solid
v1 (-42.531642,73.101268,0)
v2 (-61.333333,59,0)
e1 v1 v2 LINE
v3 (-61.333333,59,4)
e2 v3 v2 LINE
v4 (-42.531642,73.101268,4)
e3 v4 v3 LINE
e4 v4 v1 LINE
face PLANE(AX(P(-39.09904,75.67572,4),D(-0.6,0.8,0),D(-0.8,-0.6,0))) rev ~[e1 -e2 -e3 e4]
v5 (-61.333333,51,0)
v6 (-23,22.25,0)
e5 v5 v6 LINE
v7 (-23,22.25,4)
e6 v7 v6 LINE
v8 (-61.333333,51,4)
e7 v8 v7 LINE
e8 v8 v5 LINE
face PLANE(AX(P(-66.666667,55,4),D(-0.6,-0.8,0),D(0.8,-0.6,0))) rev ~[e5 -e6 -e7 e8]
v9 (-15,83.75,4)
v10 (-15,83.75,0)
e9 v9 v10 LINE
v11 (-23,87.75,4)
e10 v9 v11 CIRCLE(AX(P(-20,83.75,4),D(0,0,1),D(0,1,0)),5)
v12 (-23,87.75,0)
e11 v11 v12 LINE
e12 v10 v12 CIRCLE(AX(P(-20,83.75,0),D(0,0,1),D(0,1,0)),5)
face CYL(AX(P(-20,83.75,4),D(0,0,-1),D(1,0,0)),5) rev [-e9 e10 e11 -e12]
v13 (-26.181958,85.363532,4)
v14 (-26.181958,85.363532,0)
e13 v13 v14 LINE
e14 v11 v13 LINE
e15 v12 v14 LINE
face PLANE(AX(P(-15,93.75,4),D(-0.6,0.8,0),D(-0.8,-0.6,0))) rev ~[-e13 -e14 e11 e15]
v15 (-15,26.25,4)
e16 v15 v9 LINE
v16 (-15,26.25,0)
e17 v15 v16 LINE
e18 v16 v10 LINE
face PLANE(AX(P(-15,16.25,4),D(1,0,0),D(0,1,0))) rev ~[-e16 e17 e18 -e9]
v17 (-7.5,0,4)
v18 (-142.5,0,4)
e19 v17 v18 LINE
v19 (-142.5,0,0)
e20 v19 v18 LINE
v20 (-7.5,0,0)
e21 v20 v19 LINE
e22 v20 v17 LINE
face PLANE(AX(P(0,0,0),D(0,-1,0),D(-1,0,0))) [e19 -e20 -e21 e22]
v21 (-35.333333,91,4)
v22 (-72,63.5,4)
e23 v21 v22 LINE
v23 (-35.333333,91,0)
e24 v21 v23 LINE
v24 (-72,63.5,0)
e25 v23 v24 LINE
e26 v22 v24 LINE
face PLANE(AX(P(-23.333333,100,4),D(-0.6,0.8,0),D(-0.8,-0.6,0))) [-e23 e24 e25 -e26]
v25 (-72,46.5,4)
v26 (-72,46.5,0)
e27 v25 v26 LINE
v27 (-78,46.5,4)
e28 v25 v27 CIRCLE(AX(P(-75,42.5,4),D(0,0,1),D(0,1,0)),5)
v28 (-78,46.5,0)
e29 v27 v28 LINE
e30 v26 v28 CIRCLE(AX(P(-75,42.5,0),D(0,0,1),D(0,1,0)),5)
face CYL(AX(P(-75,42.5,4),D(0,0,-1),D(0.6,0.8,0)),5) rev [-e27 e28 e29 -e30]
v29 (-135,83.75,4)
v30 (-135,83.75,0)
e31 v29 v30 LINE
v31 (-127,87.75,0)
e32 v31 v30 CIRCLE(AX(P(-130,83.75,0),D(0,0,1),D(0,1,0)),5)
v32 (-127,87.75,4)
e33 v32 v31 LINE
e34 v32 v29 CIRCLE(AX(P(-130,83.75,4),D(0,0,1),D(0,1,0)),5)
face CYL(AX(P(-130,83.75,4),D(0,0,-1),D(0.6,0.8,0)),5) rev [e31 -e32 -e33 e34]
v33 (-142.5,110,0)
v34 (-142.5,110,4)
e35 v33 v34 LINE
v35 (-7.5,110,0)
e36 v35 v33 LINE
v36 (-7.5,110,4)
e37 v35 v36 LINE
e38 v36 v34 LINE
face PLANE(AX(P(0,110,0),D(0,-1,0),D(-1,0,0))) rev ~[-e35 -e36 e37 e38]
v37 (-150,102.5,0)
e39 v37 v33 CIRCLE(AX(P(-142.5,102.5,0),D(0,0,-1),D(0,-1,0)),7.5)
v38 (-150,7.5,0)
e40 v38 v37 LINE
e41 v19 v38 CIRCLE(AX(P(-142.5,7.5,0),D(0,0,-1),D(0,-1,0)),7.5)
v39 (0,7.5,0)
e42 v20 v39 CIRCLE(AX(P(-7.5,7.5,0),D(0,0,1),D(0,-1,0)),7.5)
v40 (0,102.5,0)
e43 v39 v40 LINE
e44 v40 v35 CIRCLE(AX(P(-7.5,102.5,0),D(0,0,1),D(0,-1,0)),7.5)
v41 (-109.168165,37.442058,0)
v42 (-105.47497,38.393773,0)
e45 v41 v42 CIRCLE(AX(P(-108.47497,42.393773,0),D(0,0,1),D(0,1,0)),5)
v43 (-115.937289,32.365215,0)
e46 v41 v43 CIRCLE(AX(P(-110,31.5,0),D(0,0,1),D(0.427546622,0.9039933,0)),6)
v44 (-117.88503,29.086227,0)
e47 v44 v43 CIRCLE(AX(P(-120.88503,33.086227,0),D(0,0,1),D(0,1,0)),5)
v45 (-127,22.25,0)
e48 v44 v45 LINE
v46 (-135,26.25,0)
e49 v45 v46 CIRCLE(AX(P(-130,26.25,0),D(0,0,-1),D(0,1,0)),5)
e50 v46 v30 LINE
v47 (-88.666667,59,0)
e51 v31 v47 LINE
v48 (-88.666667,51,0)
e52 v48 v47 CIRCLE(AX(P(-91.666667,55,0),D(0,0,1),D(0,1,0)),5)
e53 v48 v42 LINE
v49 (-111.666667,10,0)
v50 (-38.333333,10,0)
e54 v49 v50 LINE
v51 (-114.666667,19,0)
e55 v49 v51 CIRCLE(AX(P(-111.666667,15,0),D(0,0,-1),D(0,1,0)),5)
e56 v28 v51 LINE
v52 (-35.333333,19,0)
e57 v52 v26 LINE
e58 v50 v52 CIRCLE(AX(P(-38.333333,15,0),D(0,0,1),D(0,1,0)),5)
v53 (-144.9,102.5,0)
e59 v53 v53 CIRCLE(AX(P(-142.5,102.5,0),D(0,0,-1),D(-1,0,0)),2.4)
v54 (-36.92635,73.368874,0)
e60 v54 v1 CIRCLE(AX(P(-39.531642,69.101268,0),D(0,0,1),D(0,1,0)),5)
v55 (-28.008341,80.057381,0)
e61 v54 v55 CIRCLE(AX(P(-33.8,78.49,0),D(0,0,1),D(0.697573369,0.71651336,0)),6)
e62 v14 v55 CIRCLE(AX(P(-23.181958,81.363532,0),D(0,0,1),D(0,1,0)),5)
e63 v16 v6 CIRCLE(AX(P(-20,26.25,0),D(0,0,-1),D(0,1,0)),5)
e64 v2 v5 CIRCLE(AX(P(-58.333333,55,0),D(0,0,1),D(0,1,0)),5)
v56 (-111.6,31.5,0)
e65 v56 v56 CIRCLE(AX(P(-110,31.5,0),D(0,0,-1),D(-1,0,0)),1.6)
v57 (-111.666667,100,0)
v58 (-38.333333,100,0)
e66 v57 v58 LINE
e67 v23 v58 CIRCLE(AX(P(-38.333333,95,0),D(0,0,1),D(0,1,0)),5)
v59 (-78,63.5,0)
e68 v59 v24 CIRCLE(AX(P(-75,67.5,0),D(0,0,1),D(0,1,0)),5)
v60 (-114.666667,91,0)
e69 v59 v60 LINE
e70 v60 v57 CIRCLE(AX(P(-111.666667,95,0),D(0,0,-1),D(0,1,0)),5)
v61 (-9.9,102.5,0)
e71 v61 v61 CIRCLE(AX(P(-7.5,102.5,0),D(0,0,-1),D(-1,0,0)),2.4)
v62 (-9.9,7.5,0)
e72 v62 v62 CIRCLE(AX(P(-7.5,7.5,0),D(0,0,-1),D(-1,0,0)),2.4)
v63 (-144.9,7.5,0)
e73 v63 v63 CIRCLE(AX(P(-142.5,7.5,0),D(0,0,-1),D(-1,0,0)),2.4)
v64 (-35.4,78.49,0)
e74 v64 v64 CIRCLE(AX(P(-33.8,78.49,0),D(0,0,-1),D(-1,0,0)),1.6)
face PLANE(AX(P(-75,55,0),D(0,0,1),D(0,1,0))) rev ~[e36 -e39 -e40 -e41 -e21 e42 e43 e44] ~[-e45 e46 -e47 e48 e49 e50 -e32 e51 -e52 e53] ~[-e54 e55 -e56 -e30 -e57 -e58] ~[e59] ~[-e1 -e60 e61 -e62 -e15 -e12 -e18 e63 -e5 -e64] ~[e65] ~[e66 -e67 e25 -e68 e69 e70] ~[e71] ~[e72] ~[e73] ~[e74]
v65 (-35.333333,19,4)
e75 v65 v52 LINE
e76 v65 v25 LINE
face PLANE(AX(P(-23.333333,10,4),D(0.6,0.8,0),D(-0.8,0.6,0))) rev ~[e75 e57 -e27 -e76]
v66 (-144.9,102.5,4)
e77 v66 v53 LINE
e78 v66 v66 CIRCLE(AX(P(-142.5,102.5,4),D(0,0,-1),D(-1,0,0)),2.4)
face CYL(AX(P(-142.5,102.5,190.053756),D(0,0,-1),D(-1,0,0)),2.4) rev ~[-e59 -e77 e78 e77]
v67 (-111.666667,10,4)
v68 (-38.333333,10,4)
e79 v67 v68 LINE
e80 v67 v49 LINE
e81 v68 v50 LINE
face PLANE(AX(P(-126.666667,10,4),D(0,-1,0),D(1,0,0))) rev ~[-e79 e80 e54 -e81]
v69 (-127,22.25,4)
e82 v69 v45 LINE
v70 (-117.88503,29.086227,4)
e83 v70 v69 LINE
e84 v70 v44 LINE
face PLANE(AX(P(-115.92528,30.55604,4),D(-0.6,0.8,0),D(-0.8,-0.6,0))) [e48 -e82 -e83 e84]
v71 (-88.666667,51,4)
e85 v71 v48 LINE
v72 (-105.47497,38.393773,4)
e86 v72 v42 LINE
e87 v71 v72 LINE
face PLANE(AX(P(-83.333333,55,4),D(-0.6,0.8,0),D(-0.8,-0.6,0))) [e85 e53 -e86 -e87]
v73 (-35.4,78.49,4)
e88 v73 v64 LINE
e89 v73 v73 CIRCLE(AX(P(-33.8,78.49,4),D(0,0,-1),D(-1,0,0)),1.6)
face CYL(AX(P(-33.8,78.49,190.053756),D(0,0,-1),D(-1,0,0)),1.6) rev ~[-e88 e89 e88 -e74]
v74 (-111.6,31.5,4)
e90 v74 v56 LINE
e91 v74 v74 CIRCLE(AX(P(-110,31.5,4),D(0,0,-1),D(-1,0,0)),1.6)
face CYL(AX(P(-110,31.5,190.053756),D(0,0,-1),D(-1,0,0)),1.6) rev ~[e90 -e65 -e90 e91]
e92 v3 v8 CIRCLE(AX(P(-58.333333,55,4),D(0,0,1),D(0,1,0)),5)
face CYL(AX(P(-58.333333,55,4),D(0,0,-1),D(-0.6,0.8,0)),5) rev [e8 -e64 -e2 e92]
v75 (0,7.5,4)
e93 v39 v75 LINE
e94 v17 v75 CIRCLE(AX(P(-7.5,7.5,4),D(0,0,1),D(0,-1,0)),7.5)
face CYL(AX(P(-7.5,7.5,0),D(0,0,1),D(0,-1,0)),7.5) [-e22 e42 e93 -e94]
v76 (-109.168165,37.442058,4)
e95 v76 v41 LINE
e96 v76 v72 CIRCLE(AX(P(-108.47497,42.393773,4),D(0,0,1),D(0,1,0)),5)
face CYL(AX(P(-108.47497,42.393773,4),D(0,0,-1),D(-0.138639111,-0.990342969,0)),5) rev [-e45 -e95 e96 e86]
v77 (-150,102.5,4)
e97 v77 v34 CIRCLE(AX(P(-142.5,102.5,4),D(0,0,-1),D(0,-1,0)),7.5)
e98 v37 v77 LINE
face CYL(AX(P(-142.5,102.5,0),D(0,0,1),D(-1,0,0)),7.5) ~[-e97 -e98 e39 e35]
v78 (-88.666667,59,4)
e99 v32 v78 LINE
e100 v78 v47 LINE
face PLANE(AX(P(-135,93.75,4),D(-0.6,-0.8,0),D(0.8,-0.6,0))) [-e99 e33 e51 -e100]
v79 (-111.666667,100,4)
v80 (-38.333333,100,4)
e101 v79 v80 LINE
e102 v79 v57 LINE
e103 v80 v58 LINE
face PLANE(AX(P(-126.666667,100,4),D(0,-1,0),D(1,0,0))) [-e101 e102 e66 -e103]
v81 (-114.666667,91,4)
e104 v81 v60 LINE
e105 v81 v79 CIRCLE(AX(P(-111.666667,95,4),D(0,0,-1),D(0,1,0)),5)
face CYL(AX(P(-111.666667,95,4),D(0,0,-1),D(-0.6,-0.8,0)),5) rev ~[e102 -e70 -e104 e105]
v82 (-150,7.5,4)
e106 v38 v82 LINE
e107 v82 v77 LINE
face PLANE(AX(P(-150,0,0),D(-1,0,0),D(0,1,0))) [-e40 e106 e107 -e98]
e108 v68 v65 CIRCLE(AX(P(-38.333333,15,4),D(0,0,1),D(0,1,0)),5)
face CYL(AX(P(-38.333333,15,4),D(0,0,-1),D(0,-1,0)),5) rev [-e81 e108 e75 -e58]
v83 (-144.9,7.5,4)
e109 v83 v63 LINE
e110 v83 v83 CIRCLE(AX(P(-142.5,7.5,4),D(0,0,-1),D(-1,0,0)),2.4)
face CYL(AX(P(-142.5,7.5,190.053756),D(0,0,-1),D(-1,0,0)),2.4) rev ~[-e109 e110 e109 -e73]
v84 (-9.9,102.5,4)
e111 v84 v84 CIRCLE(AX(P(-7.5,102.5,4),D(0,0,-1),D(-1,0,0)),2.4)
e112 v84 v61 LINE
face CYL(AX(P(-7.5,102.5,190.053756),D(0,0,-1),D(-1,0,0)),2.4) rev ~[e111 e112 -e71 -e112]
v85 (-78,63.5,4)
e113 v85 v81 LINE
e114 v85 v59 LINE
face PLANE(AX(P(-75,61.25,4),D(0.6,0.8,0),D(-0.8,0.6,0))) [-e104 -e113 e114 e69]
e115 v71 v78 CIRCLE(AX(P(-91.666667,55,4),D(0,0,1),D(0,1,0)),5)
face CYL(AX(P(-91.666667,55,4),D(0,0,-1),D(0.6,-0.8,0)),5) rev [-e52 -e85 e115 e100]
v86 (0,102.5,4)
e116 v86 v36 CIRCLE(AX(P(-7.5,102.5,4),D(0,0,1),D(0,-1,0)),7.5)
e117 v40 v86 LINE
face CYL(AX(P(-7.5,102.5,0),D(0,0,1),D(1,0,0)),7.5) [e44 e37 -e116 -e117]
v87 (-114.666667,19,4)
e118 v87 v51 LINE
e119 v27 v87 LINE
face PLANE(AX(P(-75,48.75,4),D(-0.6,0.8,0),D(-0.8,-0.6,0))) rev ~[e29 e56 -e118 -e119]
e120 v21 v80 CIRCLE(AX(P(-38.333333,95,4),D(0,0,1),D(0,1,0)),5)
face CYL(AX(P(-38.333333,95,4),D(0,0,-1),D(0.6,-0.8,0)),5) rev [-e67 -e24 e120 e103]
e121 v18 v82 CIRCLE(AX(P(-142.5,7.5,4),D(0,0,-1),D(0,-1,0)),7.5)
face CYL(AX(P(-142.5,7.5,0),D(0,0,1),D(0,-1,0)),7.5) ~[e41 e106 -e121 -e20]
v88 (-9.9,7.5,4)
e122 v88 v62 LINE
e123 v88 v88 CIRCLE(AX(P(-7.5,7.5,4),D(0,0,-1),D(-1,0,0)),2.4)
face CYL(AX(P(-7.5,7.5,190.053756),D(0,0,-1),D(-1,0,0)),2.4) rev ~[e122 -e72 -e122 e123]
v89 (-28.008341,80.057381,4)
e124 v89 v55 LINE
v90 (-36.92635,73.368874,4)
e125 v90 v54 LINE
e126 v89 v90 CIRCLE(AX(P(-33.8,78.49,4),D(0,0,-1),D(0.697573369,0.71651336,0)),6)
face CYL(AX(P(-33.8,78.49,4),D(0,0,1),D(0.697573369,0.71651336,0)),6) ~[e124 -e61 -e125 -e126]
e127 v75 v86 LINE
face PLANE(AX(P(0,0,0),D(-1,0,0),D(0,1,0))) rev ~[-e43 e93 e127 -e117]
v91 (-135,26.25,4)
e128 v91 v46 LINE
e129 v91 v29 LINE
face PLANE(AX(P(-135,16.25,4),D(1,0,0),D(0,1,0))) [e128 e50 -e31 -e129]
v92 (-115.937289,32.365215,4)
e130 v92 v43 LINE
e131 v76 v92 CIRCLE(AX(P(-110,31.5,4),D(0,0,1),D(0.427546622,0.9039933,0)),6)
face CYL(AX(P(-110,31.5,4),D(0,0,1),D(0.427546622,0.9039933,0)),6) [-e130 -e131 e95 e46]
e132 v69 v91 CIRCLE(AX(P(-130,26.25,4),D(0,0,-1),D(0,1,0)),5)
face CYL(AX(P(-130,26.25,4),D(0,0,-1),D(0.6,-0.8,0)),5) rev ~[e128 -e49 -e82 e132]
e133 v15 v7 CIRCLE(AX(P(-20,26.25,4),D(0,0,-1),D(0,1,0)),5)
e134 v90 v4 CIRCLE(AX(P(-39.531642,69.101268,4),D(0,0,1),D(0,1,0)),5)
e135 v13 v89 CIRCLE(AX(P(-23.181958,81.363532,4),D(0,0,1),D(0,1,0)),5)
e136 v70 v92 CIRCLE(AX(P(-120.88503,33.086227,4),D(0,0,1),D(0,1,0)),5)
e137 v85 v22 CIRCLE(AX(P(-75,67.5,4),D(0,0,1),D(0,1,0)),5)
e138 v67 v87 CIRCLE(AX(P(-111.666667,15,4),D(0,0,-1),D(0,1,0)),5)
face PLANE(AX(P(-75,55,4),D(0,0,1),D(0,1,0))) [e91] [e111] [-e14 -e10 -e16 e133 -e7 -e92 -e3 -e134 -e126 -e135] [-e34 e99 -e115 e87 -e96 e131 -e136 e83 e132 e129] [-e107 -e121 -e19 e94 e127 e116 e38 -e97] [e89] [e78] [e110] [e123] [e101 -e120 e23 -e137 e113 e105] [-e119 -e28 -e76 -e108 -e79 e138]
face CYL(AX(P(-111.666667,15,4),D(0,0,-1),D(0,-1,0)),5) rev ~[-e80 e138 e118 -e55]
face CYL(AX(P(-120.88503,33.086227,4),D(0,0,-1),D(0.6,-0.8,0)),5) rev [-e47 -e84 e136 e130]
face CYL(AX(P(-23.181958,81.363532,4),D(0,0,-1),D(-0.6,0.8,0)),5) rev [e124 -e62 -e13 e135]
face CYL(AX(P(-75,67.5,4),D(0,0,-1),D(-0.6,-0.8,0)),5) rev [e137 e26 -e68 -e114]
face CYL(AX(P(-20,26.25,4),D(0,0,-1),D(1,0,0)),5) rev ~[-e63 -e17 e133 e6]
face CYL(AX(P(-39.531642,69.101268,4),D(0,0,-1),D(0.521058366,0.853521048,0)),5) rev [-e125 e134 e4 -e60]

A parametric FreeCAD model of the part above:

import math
import FreeCAD as App
import Part
import Sketcher
from FreeCAD import Vector
Q = App.Units.Quantity


def edges_at(feature, points):
    """Names of the edges that pass closest to the given points."""
    edges = feature.Shape.Edges
    near = lambda p: min(range(len(edges)), key=lambda i: edges[i].distToShape(Part.Vertex(*p))[0])
    return sorted({f"Edge{near(p) + 1}" for p in points})


def add_polygon(sketch, points):
    """Adds a closed chain of lines whose ends are joined by coincident constraints."""
    first, n = sketch.GeometryCount, len(points)
    for a, b in zip(points, points[1:] + points[:1]):
        sketch.addGeometry(Part.LineSegment(App.Vector(*a, 0), App.Vector(*b, 0)), False)
    for i in range(n):
        sketch.addConstraint(Sketcher.Constraint("Coincident", first + i, 2, first + (i + 1) % n, 1))

doc = App.newDocument("Part")
body = doc.addObject("PartDesign::Body", "Body")

sketch1 = doc.addObject("Sketcher::SketchObject", "Sketch")
body.addObject(sketch1)
sketch1.AttachmentSupport = (doc.XY_Plane, [""])
sketch1.MapMode = "FlatFace"
add_polygon(sketch1, [(-150, 0), (0, 0), (0, 110), (-150, 110)])
sketch1.addConstraint(Sketcher.Constraint("Horizontal", 0))
sketch1.addConstraint(Sketcher.Constraint("Vertical", 1))
sketch1.addConstraint(Sketcher.Constraint("Horizontal", 2))
sketch1.addConstraint(Sketcher.Constraint("Vertical", 3))
sketch1.addConstraint(Sketcher.Constraint("Coincident", 0, 2, -1, 1))
sketch1.addConstraint(Sketcher.Constraint("DistanceX", 0, 1, 0, 2, Q("150 mm")))
sketch1.addConstraint(Sketcher.Constraint("DistanceY", 1, 1, 1, 2, Q("110 mm")))
pad1 = doc.addObject("PartDesign::Pad", "Pad")
body.addObject(pad1)
pad1.Profile = sketch1
pad1.Length = 4

sketch2 = doc.addObject("Sketcher::SketchObject", "Sketch001")
body.addObject(sketch2)
sketch2.AttachmentSupport = (doc.XY_Plane, [""])
sketch2.MapMode = "FlatFace"
sketch2.AttachmentOffset = App.Placement(Vector(0, 0, 4), App.Rotation())
sketch2.addGeometry(Part.Circle(Vector(-142.5, 102.5, 0), Vector(0, 0, 1), 2.4), False)
sketch2.addGeometry(Part.Circle(Vector(-142.5, 7.5, 0), Vector(0, 0, 1), 2.4), False)
sketch2.addGeometry(Part.Circle(Vector(-7.5, 102.5, 0), Vector(0, 0, 1), 2.4), False)
sketch2.addGeometry(Part.Circle(Vector(-7.5, 7.5, 0), Vector(0, 0, 1), 2.4), False)
sketch2.addConstraint(Sketcher.Constraint("Equal", 0, 1))
sketch2.addConstraint(Sketcher.Constraint("Equal", 1, 2))
sketch2.addConstraint(Sketcher.Constraint("Equal", 2, 3))
sketch2.addConstraint(Sketcher.Constraint("Horizontal", 0, 3, 2, 3))
sketch2.addConstraint(Sketcher.Constraint("Horizontal", 1, 3, 3, 3))
sketch2.addConstraint(Sketcher.Constraint("Vertical", 0, 3, 1, 3))
sketch2.addConstraint(Sketcher.Constraint("Vertical", 2, 3, 3, 3))
sketch2.addConstraint(Sketcher.Constraint("Diameter", 0, Q("4.8 mm")))
sketch2.addConstraint(Sketcher.Constraint("DistanceY", 1, 3, 0, 3, Q("95 mm")))
sketch2.addConstraint(Sketcher.Constraint("DistanceX", 0, 3, 2, 3, Q("135 mm")))
sketch2.addConstraint(Sketcher.Constraint("DistanceX", 0, 3, -1, 1, Q("142.5 mm")))
sketch2.addConstraint(Sketcher.Constraint("DistanceY", -1, 1, 0, 3, Q("102.5 mm")))
doc.recompute()
hole = doc.addObject("PartDesign::Hole", "Hole")
body.addObject(hole)
hole.Profile = sketch2
hole.ThreadType = "None"
hole.Diameter = 4.8
hole.DepthType = "ThroughAll"

sketch3 = doc.addObject("Sketcher::SketchObject", "Sketch002")
body.addObject(sketch3)
sketch3.AttachmentSupport = (doc.XY_Plane, [""])
sketch3.MapMode = "FlatFace"
sketch3.AttachmentOffset = App.Placement(Vector(0, 0, 4), App.Rotation())
sketch3.addGeometry(Part.Circle(Vector(-110, 31.5, 0), Vector(0, 0, 1), 1.6), False)
sketch3.addGeometry(Part.Circle(Vector(-33.8, 78.5, 0), Vector(0, 0, 1), 1.6), False)
sketch3.addConstraint(Sketcher.Constraint("Equal", 0, 1))
sketch3.addConstraint(Sketcher.Constraint("Diameter", 0, Q("3.2 mm")))
sketch3.addConstraint(Sketcher.Constraint("DistanceX", 0, 3, -1, 1, Q("110 mm")))
sketch3.addConstraint(Sketcher.Constraint("DistanceY", -1, 1, 0, 3, Q("31.5 mm")))
sketch3.addConstraint(Sketcher.Constraint("DistanceX", 1, 3, -1, 1, Q("33.8 mm")))
sketch3.addConstraint(Sketcher.Constraint("DistanceY", -1, 1, 1, 3, Q("78.49 mm")))
doc.recompute()
hole2 = doc.addObject("PartDesign::Hole", "Hole001")
body.addObject(hole2)
hole2.Profile = sketch3
hole2.ThreadType = "None"
hole2.Diameter = 3.2
hole2.DepthType = "ThroughAll"

sketch4 = doc.addObject("Sketcher::SketchObject", "Sketch003")
body.addObject(sketch4)
sketch4.AttachmentSupport = (doc.XY_Plane, [""])
sketch4.MapMode = "FlatFace"
sketch4.AttachmentOffset = App.Placement(Vector(0, 0, 4), App.Rotation())
add_polygon(sketch4, [(-170, 130), (-170, -20), (20, -20), (20, 130)])
add_polygon(sketch4, [(0, 0), (-150, 0), (-150, 110), (0, 110)])
add_polygon(sketch4, [(-127, 10), (-23, 10), (-75, 49)])
sketch4.addGeometry(Part.LineSegment(Vector(-135, 94, 0), Vector(-135, 16, 0)), False)
sketch4.addGeometry(Part.LineSegment(Vector(-135, 16, 0), Vector(-116, 31, 0)), False)
sketch4.addGeometry(Part.ArcOfCircle(Part.Circle(Vector(-110, 31, 0), Vector(0, 0, 1), 6), math.radians(65), math.radians(189)), False)
sketch4.addGeometry(Part.LineSegment(Vector(-107, 37, 0), Vector(-83, 55, 0)), False)
sketch4.addGeometry(Part.LineSegment(Vector(-83, 55, 0), Vector(-135, 94, 0)), False)
add_polygon(sketch4, [(-23, 100), (-127, 100), (-75, 61)])
sketch4.addGeometry(Part.LineSegment(Vector(-15, 16, 0), Vector(-15, 94, 0)), False)
sketch4.addGeometry(Part.LineSegment(Vector(-15, 94, 0), Vector(-30, 83, 0)), False)
sketch4.addGeometry(Part.ArcOfCircle(Part.Circle(Vector(-34, 78, 0), Vector(0, 0, 1), 6), math.radians(-152), math.radians(46)), False)
sketch4.addGeometry(Part.LineSegment(Vector(-39, 76, 0), Vector(-67, 55, 0)), False)
sketch4.addGeometry(Part.LineSegment(Vector(-67, 55, 0), Vector(-15, 16, 0)), False)
sketch4.addConstraint(Sketcher.Constraint("Coincident", 11, 2, 12, 1))
sketch4.addConstraint(Sketcher.Constraint("Coincident", 12, 2, 13, 2))
sketch4.addConstraint(Sketcher.Constraint("Coincident", 13, 1, 14, 1))
sketch4.addConstraint(Sketcher.Constraint("Coincident", 14, 2, 15, 1))
sketch4.addConstraint(Sketcher.Constraint("Coincident", 15, 2, 11, 1))
sketch4.addConstraint(Sketcher.Constraint("Coincident", 19, 2, 20, 1))
sketch4.addConstraint(Sketcher.Constraint("Coincident", 20, 2, 21, 2))
sketch4.addConstraint(Sketcher.Constraint("Coincident", 21, 1, 22, 1))
sketch4.addConstraint(Sketcher.Constraint("Coincident", 22, 2, 23, 1))
sketch4.addConstraint(Sketcher.Constraint("Coincident", 23, 2, 19, 1))
sketch4.addConstraint(Sketcher.Constraint("Vertical", 0))
sketch4.addConstraint(Sketcher.Constraint("Horizontal", 1))
sketch4.addConstraint(Sketcher.Constraint("Vertical", 2))
sketch4.addConstraint(Sketcher.Constraint("Horizontal", 3))
sketch4.addConstraint(Sketcher.Constraint("Horizontal", 4))
sketch4.addConstraint(Sketcher.Constraint("Vertical", 5))
sketch4.addConstraint(Sketcher.Constraint("Horizontal", 6))
sketch4.addConstraint(Sketcher.Constraint("Vertical", 7))
sketch4.addConstraint(Sketcher.Constraint("Horizontal", 8))
sketch4.addConstraint(Sketcher.Constraint("Vertical", 11))
sketch4.addConstraint(Sketcher.Constraint("Horizontal", 16))
sketch4.addConstraint(Sketcher.Constraint("Vertical", 19))
sketch4.addConstraint(Sketcher.Constraint("Coincident", 7, 2, -1, 1))
sketch4.addConstraint(Sketcher.Constraint("Equal", 13, 21))
sketch4.addConstraint(Sketcher.Constraint("Parallel", 10, 12))
sketch4.addConstraint(Sketcher.Constraint("Parallel", 12, 14))
sketch4.addConstraint(Sketcher.Constraint("Parallel", 9, 15))
sketch4.addConstraint(Sketcher.Constraint("Parallel", 15, 17))
sketch4.addConstraint(Sketcher.Constraint("Parallel", 14, 18))
sketch4.addConstraint(Sketcher.Constraint("Parallel", 18, 20))
sketch4.addConstraint(Sketcher.Constraint("Parallel", 20, 22))
sketch4.addConstraint(Sketcher.Constraint("Parallel", 17, 23))
sketch4.addConstraint(Sketcher.Constraint("Horizontal", 15, 2, 19, 2))
sketch4.addConstraint(Sketcher.Constraint("Horizontal", 14, 2, 22, 2))
sketch4.addConstraint(Sketcher.Constraint("Horizontal", 11, 2, 23, 2))
sketch4.addConstraint(Sketcher.Constraint("Vertical", 10, 2, 16, 2))
sketch4.addConstraint(Sketcher.Constraint("Vertical", 9, 2, 17, 2))
sketch4.addConstraint(Sketcher.Constraint("Vertical", 8, 2, 18, 2))
sketch4.addConstraint(Sketcher.Constraint("Equal", 10, 15))
sketch4.addConstraint(Sketcher.Constraint("Equal", 18, 23))
sketch4.addConstraint(Sketcher.Constraint("Radius", 13, Q("6 mm")))
sketch4.addConstraint(Sketcher.Constraint("DistanceX", 4, 2, 4, 1, Q("150 mm")))
sketch4.addConstraint(Sketcher.Constraint("DistanceY", 5, 1, 5, 2, Q("110 mm")))
sketch4.addConstraint(Sketcher.Constraint("DistanceY", 11, 2, 11, 1, Q("77.5 mm")))
sketch4.addConstraint(Sketcher.Constraint("DistanceX", 13, 3, -1, 1, Q("110 mm")))
sketch4.addConstraint(Sketcher.Constraint("DistanceY", -1, 1, 8, 2, Q("10 mm")))
sketch4.addConstraint(Sketcher.Constraint("DistanceX", 9, 2, -1, 1, Q("75 mm")))
sketch4.addConstraint(Sketcher.Constraint("DistanceX", 11, 2, -1, 1, Q("135 mm")))
sketch4.addConstraint(Sketcher.Constraint("DistanceY", -1, 1, 14, 2, Q("55 mm")))
sketch4.addConstraint(Sketcher.Constraint("DistanceY", -1, 1, 16, 2, Q("100 mm")))
sketch4.addConstraint(Sketcher.Constraint("DistanceX", 19, 2, -1, 1, Q("15 mm")))
sketch4.addConstraint(Sketcher.Constraint("DistanceX", 1, 1, 1, 2, Q("189.21 mm")))
sketch4.addConstraint(Sketcher.Constraint("DistanceY", 0, 2, 0, 1, Q("149.21 mm")))
sketch4.addConstraint(Sketcher.Constraint("DistanceY", -1, 1, 13, 3, Q("31.5 mm")))
sketch4.addConstraint(Sketcher.Constraint("DistanceX", 21, 3, -1, 1, Q("33.8 mm")))
sketch4.addConstraint(Sketcher.Constraint("DistanceY", -1, 1, 21, 3, Q("78.49 mm")))
sketch4.addConstraint(Sketcher.Constraint("DistanceX", 0, 2, -1, 1, Q("169.605 mm")))
sketch4.addConstraint(Sketcher.Constraint("DistanceY", 0, 2, -1, 1, Q("19.605 mm")))
sketch4.addConstraint(Sketcher.Constraint("Distance", 12, Q("23.8434 mm")))
pocket1 = doc.addObject("PartDesign::Pocket", "Pocket")
body.addObject(pocket1)
pocket1.Profile = sketch4
pocket1.Type = "ThroughAll"
doc.recompute()

fillet = doc.addObject("PartDesign::Fillet", "Fillet")
body.addObject(fillet)
fillet.Base = (pocket1, edges_at(pocket1, [
    (-75, 48.75, 2),
    (-23.333, 10, 2),
    (-126.667, 10, 2),
    (-135, 93.75, 2),
    (-83.333, 55, 2),
    (-107.435, 36.924, 2),
    (-115.925, 30.556, 2),
    (-135, 16.25, 2),
    (-15, 16.25, 2),
    (-66.667, 55, 2),
    (-39.099, 75.676, 2),
    (-29.615, 82.789, 2),
    (-15, 93.75, 2),
    (-75, 61.25, 2),
    (-126.667, 100, 2),
    (-23.333, 100, 2),
]))
fillet.Radius = 5
doc.recompute()

fillet2 = doc.addObject("PartDesign::Fillet", "Fillet001")
body.addObject(fillet2)
fillet2.Base = (fillet, edges_at(fillet, [
    (-150, 0, 2),
    (-150, 110, 2),
    (0, 110, 2),
    (0, 0, 2),
]))
fillet2.Radius = 7.5

doc.recompute()
